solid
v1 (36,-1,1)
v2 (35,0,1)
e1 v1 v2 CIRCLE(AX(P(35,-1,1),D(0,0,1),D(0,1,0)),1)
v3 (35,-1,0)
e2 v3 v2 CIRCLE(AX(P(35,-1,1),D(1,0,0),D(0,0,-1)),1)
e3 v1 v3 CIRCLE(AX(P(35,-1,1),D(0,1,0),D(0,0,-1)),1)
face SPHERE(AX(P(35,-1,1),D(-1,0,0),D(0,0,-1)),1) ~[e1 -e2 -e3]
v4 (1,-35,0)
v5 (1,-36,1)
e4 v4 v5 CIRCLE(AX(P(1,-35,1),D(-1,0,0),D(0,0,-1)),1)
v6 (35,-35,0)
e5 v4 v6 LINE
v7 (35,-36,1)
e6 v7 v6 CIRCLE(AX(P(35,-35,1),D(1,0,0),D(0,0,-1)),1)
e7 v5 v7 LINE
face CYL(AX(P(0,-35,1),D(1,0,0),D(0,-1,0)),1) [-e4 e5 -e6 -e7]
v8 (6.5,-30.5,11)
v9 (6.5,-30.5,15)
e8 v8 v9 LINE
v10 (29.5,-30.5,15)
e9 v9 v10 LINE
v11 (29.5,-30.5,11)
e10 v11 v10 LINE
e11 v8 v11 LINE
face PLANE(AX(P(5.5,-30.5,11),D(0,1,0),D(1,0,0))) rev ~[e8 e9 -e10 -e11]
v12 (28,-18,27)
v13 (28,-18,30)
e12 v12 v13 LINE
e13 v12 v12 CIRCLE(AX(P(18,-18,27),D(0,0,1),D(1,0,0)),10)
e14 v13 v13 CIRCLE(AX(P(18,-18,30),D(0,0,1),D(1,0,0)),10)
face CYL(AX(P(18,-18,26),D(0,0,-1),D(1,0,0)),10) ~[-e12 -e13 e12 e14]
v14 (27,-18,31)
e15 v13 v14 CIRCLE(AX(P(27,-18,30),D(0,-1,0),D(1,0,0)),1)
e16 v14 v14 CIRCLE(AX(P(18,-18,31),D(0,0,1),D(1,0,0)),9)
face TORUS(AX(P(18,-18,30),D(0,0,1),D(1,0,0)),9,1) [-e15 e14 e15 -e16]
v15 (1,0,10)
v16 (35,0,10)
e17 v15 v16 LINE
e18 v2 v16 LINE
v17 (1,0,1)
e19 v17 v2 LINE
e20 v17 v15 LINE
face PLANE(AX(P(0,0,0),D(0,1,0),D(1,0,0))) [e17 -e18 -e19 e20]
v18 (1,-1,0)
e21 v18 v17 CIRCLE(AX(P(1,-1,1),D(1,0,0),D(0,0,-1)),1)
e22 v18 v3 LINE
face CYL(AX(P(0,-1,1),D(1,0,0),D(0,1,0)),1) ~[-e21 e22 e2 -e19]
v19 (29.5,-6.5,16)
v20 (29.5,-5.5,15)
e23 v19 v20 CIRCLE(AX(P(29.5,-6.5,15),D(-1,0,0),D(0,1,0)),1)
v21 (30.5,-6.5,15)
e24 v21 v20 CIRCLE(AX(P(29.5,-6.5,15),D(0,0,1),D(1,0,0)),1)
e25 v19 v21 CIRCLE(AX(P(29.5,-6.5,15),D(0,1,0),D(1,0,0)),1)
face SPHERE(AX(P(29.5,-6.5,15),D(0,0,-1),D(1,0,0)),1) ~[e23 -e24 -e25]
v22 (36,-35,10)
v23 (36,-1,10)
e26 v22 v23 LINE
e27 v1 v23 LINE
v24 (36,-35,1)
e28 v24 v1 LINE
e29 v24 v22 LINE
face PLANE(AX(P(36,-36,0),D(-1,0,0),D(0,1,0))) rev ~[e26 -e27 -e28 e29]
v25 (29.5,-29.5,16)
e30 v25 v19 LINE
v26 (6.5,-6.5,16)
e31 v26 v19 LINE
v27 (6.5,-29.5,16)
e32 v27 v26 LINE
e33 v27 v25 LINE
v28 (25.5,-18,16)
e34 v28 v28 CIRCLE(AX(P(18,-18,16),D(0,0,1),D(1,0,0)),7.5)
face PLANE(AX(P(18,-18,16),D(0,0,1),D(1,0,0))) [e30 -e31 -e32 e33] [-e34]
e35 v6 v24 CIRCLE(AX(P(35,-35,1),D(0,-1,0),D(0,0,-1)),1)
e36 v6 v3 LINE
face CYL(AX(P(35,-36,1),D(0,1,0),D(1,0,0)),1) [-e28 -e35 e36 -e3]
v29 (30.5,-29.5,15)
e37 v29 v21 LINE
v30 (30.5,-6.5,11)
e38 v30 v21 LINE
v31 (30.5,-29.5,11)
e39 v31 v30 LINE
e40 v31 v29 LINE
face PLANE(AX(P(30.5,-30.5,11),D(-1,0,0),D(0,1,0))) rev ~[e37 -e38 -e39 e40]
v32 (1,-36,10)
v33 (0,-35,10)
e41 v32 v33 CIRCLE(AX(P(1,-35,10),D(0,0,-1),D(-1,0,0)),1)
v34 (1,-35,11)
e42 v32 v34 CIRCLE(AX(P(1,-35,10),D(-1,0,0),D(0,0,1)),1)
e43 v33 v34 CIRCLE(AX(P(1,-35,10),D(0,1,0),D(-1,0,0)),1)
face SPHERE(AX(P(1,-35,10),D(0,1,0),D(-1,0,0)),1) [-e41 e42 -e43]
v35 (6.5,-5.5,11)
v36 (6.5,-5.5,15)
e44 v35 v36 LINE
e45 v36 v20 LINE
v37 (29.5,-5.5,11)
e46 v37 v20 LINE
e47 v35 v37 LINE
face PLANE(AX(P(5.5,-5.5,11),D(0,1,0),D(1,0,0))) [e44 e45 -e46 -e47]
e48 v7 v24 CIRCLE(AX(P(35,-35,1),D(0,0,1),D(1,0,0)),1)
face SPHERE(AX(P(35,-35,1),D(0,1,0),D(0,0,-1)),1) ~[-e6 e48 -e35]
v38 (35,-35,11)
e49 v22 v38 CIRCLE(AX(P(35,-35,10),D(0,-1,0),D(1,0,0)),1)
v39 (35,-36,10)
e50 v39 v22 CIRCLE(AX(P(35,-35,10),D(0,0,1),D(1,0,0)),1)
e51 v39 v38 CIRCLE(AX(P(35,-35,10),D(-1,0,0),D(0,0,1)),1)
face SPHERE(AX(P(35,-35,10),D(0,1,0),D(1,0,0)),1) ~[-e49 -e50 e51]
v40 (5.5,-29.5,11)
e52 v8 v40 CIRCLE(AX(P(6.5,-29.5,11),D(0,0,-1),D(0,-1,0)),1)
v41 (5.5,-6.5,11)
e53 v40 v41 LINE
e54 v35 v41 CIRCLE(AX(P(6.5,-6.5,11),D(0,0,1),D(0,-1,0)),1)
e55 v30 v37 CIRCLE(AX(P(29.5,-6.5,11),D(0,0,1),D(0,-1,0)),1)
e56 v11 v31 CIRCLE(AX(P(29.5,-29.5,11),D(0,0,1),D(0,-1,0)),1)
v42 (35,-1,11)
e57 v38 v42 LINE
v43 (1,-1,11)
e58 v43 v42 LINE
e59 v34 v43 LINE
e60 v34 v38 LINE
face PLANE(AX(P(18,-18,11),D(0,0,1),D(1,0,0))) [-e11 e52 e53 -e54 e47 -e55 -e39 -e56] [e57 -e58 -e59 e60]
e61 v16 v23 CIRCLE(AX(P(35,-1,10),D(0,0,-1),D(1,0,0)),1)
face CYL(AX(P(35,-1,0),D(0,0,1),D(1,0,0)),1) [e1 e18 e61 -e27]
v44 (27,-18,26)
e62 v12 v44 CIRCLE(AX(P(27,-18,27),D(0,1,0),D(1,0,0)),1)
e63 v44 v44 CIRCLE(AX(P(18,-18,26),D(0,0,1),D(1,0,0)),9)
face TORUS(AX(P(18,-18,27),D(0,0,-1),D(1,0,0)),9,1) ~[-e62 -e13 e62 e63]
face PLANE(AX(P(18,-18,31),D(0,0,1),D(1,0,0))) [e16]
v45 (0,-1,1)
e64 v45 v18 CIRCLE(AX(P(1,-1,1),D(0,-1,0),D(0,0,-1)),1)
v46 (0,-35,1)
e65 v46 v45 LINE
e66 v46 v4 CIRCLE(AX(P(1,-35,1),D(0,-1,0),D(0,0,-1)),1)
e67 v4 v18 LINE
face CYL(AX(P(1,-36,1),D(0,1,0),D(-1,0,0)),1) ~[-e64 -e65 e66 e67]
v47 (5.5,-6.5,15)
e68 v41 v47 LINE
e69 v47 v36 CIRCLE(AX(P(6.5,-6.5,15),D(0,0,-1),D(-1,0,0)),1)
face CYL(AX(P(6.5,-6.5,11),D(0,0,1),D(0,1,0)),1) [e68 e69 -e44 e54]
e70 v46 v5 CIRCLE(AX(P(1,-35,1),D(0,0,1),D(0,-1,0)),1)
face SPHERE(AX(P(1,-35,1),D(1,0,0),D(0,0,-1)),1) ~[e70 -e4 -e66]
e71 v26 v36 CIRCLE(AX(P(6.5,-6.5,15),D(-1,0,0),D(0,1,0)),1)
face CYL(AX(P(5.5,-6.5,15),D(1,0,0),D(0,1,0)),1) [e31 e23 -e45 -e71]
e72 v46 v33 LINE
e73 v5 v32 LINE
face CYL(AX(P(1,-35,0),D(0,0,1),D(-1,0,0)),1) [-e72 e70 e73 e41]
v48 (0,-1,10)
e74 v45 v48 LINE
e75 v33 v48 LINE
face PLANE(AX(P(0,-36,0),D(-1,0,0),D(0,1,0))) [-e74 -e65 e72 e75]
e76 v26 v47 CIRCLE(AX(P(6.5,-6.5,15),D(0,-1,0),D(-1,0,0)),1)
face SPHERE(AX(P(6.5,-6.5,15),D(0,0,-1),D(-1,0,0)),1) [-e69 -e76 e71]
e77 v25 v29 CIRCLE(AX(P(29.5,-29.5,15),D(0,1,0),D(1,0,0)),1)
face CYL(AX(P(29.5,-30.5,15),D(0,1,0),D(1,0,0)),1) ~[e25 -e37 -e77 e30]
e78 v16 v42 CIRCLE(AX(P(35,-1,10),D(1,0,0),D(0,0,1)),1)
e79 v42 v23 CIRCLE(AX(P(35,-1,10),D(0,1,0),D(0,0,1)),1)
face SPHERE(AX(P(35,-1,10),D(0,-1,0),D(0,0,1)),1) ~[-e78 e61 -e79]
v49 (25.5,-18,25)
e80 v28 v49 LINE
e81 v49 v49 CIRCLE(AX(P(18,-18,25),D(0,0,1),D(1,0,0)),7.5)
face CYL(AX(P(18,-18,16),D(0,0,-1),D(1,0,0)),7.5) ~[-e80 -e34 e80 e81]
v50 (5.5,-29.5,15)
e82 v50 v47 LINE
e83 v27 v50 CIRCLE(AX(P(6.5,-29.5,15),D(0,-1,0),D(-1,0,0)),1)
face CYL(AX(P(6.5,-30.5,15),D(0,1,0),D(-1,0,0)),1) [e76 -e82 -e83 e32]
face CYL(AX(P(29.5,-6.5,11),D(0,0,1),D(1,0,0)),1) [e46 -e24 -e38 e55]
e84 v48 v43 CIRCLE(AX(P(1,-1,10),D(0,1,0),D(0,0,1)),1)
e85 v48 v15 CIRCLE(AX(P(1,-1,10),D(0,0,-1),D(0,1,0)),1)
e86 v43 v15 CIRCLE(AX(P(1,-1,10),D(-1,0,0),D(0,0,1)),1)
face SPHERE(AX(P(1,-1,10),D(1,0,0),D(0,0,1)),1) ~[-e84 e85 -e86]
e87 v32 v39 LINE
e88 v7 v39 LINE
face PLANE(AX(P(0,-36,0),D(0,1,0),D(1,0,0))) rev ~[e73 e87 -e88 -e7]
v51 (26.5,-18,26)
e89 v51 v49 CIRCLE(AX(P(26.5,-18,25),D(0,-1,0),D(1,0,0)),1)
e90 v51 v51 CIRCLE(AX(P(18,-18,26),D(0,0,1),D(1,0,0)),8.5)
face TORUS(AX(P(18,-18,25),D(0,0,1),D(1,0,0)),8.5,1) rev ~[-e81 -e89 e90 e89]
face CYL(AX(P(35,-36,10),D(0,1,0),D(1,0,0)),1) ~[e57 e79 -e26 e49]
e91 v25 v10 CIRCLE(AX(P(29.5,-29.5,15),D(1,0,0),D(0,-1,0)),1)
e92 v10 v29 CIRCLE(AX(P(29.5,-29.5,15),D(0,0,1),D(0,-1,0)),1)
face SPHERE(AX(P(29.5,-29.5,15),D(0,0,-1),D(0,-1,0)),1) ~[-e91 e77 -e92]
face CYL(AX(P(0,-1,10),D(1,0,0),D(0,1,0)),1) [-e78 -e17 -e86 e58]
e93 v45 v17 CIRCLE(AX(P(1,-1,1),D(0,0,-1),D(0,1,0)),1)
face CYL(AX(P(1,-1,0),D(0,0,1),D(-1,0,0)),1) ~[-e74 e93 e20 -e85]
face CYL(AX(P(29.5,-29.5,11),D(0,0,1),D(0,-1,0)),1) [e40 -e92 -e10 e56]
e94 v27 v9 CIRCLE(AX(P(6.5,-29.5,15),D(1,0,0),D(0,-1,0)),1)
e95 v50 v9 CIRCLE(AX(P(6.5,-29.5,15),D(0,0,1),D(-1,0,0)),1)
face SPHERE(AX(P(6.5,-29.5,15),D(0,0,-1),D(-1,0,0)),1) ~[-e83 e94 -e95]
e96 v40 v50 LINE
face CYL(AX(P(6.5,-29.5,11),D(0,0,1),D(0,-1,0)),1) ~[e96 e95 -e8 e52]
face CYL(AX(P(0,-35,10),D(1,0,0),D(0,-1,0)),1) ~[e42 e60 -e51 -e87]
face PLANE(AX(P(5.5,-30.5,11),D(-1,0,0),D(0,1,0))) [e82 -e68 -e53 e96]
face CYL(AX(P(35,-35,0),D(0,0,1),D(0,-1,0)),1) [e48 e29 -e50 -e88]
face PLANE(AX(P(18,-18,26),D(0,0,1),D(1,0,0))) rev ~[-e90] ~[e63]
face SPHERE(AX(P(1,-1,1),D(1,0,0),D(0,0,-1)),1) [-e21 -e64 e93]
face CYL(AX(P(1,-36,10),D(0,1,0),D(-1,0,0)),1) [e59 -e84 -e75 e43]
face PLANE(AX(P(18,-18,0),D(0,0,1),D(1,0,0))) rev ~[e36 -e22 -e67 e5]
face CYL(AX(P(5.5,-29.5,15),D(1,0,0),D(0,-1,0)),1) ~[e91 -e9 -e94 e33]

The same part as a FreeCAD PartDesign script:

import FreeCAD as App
import Part
import Sketcher
Q = App.Units.Quantity


def edges_at(feature, points):
    """Names of the edges that pass closest to the given points."""
    edges = feature.Shape.Edges
    near = lambda p: min(range(len(edges)), key=lambda i: edges[i].distToShape(Part.Vertex(*p))[0])
    return sorted({f"Edge{near(p) + 1}" for p in points})


def add_polygon(sketch, points):
    """Adds a closed chain of lines whose ends are joined by coincident constraints."""
    first, n = sketch.GeometryCount, len(points)
    for a, b in zip(points, points[1:] + points[:1]):
        sketch.addGeometry(Part.LineSegment(App.Vector(*a, 0), App.Vector(*b, 0)), False)
    for i in range(n):
        sketch.addConstraint(Sketcher.Constraint("Coincident", first + i, 2, first + (i + 1) % n, 1))

doc = App.newDocument("Part")
body = doc.addObject("PartDesign::Body", "Body")

# Sketch on XY plane
sketch1 = doc.addObject("Sketcher::SketchObject", "Sketch")
body.addObject(sketch1)
sketch1.AttachmentSupport = (doc.XY_Plane, [""])
sketch1.MapMode = "FlatFace"
add_polygon(sketch1, [(0, 0), (0, -36), (36, -36), (36, 0)])  # lines 0-3
sketch1.addConstraint([
    Sketcher.Constraint("Vertical", 0),
    Sketcher.Constraint("Horizontal", 1),
    Sketcher.Constraint("Vertical", 2),
    Sketcher.Constraint("Horizontal", 3),
    Sketcher.Constraint("Coincident", 3, 2, -1, 1),
    Sketcher.Constraint("Equal", 3, 0),
    Sketcher.Constraint("DistanceX", 1, 1, 1, 2, Q("36 mm")),
])
pad1 = doc.addObject("PartDesign::Pad", "Pad")
body.addObject(pad1)
pad1.Profile = sketch1
pad1.Length = 11
doc.recompute()

fillet = doc.addObject("PartDesign::Fillet", "Fillet")
body.addObject(fillet)
fillet.Base = (pad1, ["Edge1"])
fillet.UseAllEdges = True
fillet.Radius = 1

# Sketch on XY plane
sketch2 = doc.addObject("Sketcher::SketchObject", "Sketch001")
body.addObject(sketch2)
sketch2.AttachmentSupport = (doc.XY_Plane, [""])
sketch2.MapMode = "FlatFace"
sketch2.AttachmentOffset = App.Placement(App.Vector(0, 0, 11), App.Rotation())
add_polygon(sketch2, [(6, -6), (6, -30), (30, -30), (30, -6)])  # lines 0-3
sketch2.addConstraint([
    Sketcher.Constraint("Vertical", 0),
    Sketcher.Constraint("Horizontal", 1),
    Sketcher.Constraint("Vertical", 2),
    Sketcher.Constraint("Horizontal", 3),
    Sketcher.Constraint("Equal", 3, 0),
    Sketcher.Constraint("DistanceX", 1, 1, 1, 2, Q("25 mm")),
    Sketcher.Constraint("DistanceX", -1, 1, 0, 2, Q("5.5 mm")),
    Sketcher.Constraint("DistanceY", 0, 2, -1, 1, Q("30.5 mm")),
])
pad2 = doc.addObject("PartDesign::Pad", "Pad001")
body.addObject(pad2)
pad2.Profile = sketch2
pad2.Length = 5
doc.recompute()

fillet2 = doc.addObject("PartDesign::Fillet", "Fillet001")
body.addObject(fillet2)
fillet2.Base = (pad2, edges_at(pad2, [
    (5.5, -5.5, 13.5),
    (5.5, -30.5, 13.5),
    (30.5, -30.5, 13.5),
    (30.5, -5.5, 13.5),
    (5.5, -18, 16),
    (18, -30.5, 16),
    (30.5, -18, 16),
    (18, -5.5, 16),
]))
fillet2.Radius = 1

# Sketch on XY plane
sketch3 = doc.addObject("Sketcher::SketchObject", "Sketch002")
body.addObject(sketch3)
sketch3.AttachmentSupport = (doc.XY_Plane, [""])
sketch3.MapMode = "FlatFace"
sketch3.AttachmentOffset = App.Placement(App.Vector(0, 0, 16), App.Rotation())
sketch3.addGeometry(Part.Circle(App.Vector(18, -18, 0), App.Vector(0, 0, 1), 8), False)
sketch3.addConstraint([
    Sketcher.Constraint("Diameter", 0, Q("15 mm")),
    Sketcher.Constraint("DistanceX", -1, 1, 0, 3, Q("18 mm")),
    Sketcher.Constraint("DistanceY", 0, 3, -1, 1, Q("18 mm")),
])
pad3 = doc.addObject("PartDesign::Pad", "Pad002")
body.addObject(pad3)
pad3.Profile = sketch3
pad3.Length = 10

# Sketch on XY plane
sketch4 = doc.addObject("Sketcher::SketchObject", "Sketch003")
body.addObject(sketch4)
sketch4.AttachmentSupport = (doc.XY_Plane, [""])
sketch4.MapMode = "FlatFace"
sketch4.AttachmentOffset = App.Placement(App.Vector(0, 0, 26), App.Rotation())
sketch4.addGeometry(Part.Circle(App.Vector(18, -18, 0), App.Vector(0, 0, 1), 10), False)
sketch4.addConstraint([
    Sketcher.Constraint("Diameter", 0, Q("20 mm")),
    Sketcher.Constraint("DistanceX", -1, 1, 0, 3, Q("18 mm")),
    Sketcher.Constraint("DistanceY", 0, 3, -1, 1, Q("18 mm")),
])
pad4 = doc.addObject("PartDesign::Pad", "Pad003")
body.addObject(pad4)
pad4.Profile = sketch4
pad4.Length = 5
doc.recompute()

fillet3 = doc.addObject("PartDesign::Fillet", "Fillet002")
body.addObject(fillet3)
fillet3.Base = (pad4, edges_at(pad4, [(10.5, -18, 26), (8, -18, 26), (8, -18, 31)]))
fillet3.Radius = 1

doc.recompute()
